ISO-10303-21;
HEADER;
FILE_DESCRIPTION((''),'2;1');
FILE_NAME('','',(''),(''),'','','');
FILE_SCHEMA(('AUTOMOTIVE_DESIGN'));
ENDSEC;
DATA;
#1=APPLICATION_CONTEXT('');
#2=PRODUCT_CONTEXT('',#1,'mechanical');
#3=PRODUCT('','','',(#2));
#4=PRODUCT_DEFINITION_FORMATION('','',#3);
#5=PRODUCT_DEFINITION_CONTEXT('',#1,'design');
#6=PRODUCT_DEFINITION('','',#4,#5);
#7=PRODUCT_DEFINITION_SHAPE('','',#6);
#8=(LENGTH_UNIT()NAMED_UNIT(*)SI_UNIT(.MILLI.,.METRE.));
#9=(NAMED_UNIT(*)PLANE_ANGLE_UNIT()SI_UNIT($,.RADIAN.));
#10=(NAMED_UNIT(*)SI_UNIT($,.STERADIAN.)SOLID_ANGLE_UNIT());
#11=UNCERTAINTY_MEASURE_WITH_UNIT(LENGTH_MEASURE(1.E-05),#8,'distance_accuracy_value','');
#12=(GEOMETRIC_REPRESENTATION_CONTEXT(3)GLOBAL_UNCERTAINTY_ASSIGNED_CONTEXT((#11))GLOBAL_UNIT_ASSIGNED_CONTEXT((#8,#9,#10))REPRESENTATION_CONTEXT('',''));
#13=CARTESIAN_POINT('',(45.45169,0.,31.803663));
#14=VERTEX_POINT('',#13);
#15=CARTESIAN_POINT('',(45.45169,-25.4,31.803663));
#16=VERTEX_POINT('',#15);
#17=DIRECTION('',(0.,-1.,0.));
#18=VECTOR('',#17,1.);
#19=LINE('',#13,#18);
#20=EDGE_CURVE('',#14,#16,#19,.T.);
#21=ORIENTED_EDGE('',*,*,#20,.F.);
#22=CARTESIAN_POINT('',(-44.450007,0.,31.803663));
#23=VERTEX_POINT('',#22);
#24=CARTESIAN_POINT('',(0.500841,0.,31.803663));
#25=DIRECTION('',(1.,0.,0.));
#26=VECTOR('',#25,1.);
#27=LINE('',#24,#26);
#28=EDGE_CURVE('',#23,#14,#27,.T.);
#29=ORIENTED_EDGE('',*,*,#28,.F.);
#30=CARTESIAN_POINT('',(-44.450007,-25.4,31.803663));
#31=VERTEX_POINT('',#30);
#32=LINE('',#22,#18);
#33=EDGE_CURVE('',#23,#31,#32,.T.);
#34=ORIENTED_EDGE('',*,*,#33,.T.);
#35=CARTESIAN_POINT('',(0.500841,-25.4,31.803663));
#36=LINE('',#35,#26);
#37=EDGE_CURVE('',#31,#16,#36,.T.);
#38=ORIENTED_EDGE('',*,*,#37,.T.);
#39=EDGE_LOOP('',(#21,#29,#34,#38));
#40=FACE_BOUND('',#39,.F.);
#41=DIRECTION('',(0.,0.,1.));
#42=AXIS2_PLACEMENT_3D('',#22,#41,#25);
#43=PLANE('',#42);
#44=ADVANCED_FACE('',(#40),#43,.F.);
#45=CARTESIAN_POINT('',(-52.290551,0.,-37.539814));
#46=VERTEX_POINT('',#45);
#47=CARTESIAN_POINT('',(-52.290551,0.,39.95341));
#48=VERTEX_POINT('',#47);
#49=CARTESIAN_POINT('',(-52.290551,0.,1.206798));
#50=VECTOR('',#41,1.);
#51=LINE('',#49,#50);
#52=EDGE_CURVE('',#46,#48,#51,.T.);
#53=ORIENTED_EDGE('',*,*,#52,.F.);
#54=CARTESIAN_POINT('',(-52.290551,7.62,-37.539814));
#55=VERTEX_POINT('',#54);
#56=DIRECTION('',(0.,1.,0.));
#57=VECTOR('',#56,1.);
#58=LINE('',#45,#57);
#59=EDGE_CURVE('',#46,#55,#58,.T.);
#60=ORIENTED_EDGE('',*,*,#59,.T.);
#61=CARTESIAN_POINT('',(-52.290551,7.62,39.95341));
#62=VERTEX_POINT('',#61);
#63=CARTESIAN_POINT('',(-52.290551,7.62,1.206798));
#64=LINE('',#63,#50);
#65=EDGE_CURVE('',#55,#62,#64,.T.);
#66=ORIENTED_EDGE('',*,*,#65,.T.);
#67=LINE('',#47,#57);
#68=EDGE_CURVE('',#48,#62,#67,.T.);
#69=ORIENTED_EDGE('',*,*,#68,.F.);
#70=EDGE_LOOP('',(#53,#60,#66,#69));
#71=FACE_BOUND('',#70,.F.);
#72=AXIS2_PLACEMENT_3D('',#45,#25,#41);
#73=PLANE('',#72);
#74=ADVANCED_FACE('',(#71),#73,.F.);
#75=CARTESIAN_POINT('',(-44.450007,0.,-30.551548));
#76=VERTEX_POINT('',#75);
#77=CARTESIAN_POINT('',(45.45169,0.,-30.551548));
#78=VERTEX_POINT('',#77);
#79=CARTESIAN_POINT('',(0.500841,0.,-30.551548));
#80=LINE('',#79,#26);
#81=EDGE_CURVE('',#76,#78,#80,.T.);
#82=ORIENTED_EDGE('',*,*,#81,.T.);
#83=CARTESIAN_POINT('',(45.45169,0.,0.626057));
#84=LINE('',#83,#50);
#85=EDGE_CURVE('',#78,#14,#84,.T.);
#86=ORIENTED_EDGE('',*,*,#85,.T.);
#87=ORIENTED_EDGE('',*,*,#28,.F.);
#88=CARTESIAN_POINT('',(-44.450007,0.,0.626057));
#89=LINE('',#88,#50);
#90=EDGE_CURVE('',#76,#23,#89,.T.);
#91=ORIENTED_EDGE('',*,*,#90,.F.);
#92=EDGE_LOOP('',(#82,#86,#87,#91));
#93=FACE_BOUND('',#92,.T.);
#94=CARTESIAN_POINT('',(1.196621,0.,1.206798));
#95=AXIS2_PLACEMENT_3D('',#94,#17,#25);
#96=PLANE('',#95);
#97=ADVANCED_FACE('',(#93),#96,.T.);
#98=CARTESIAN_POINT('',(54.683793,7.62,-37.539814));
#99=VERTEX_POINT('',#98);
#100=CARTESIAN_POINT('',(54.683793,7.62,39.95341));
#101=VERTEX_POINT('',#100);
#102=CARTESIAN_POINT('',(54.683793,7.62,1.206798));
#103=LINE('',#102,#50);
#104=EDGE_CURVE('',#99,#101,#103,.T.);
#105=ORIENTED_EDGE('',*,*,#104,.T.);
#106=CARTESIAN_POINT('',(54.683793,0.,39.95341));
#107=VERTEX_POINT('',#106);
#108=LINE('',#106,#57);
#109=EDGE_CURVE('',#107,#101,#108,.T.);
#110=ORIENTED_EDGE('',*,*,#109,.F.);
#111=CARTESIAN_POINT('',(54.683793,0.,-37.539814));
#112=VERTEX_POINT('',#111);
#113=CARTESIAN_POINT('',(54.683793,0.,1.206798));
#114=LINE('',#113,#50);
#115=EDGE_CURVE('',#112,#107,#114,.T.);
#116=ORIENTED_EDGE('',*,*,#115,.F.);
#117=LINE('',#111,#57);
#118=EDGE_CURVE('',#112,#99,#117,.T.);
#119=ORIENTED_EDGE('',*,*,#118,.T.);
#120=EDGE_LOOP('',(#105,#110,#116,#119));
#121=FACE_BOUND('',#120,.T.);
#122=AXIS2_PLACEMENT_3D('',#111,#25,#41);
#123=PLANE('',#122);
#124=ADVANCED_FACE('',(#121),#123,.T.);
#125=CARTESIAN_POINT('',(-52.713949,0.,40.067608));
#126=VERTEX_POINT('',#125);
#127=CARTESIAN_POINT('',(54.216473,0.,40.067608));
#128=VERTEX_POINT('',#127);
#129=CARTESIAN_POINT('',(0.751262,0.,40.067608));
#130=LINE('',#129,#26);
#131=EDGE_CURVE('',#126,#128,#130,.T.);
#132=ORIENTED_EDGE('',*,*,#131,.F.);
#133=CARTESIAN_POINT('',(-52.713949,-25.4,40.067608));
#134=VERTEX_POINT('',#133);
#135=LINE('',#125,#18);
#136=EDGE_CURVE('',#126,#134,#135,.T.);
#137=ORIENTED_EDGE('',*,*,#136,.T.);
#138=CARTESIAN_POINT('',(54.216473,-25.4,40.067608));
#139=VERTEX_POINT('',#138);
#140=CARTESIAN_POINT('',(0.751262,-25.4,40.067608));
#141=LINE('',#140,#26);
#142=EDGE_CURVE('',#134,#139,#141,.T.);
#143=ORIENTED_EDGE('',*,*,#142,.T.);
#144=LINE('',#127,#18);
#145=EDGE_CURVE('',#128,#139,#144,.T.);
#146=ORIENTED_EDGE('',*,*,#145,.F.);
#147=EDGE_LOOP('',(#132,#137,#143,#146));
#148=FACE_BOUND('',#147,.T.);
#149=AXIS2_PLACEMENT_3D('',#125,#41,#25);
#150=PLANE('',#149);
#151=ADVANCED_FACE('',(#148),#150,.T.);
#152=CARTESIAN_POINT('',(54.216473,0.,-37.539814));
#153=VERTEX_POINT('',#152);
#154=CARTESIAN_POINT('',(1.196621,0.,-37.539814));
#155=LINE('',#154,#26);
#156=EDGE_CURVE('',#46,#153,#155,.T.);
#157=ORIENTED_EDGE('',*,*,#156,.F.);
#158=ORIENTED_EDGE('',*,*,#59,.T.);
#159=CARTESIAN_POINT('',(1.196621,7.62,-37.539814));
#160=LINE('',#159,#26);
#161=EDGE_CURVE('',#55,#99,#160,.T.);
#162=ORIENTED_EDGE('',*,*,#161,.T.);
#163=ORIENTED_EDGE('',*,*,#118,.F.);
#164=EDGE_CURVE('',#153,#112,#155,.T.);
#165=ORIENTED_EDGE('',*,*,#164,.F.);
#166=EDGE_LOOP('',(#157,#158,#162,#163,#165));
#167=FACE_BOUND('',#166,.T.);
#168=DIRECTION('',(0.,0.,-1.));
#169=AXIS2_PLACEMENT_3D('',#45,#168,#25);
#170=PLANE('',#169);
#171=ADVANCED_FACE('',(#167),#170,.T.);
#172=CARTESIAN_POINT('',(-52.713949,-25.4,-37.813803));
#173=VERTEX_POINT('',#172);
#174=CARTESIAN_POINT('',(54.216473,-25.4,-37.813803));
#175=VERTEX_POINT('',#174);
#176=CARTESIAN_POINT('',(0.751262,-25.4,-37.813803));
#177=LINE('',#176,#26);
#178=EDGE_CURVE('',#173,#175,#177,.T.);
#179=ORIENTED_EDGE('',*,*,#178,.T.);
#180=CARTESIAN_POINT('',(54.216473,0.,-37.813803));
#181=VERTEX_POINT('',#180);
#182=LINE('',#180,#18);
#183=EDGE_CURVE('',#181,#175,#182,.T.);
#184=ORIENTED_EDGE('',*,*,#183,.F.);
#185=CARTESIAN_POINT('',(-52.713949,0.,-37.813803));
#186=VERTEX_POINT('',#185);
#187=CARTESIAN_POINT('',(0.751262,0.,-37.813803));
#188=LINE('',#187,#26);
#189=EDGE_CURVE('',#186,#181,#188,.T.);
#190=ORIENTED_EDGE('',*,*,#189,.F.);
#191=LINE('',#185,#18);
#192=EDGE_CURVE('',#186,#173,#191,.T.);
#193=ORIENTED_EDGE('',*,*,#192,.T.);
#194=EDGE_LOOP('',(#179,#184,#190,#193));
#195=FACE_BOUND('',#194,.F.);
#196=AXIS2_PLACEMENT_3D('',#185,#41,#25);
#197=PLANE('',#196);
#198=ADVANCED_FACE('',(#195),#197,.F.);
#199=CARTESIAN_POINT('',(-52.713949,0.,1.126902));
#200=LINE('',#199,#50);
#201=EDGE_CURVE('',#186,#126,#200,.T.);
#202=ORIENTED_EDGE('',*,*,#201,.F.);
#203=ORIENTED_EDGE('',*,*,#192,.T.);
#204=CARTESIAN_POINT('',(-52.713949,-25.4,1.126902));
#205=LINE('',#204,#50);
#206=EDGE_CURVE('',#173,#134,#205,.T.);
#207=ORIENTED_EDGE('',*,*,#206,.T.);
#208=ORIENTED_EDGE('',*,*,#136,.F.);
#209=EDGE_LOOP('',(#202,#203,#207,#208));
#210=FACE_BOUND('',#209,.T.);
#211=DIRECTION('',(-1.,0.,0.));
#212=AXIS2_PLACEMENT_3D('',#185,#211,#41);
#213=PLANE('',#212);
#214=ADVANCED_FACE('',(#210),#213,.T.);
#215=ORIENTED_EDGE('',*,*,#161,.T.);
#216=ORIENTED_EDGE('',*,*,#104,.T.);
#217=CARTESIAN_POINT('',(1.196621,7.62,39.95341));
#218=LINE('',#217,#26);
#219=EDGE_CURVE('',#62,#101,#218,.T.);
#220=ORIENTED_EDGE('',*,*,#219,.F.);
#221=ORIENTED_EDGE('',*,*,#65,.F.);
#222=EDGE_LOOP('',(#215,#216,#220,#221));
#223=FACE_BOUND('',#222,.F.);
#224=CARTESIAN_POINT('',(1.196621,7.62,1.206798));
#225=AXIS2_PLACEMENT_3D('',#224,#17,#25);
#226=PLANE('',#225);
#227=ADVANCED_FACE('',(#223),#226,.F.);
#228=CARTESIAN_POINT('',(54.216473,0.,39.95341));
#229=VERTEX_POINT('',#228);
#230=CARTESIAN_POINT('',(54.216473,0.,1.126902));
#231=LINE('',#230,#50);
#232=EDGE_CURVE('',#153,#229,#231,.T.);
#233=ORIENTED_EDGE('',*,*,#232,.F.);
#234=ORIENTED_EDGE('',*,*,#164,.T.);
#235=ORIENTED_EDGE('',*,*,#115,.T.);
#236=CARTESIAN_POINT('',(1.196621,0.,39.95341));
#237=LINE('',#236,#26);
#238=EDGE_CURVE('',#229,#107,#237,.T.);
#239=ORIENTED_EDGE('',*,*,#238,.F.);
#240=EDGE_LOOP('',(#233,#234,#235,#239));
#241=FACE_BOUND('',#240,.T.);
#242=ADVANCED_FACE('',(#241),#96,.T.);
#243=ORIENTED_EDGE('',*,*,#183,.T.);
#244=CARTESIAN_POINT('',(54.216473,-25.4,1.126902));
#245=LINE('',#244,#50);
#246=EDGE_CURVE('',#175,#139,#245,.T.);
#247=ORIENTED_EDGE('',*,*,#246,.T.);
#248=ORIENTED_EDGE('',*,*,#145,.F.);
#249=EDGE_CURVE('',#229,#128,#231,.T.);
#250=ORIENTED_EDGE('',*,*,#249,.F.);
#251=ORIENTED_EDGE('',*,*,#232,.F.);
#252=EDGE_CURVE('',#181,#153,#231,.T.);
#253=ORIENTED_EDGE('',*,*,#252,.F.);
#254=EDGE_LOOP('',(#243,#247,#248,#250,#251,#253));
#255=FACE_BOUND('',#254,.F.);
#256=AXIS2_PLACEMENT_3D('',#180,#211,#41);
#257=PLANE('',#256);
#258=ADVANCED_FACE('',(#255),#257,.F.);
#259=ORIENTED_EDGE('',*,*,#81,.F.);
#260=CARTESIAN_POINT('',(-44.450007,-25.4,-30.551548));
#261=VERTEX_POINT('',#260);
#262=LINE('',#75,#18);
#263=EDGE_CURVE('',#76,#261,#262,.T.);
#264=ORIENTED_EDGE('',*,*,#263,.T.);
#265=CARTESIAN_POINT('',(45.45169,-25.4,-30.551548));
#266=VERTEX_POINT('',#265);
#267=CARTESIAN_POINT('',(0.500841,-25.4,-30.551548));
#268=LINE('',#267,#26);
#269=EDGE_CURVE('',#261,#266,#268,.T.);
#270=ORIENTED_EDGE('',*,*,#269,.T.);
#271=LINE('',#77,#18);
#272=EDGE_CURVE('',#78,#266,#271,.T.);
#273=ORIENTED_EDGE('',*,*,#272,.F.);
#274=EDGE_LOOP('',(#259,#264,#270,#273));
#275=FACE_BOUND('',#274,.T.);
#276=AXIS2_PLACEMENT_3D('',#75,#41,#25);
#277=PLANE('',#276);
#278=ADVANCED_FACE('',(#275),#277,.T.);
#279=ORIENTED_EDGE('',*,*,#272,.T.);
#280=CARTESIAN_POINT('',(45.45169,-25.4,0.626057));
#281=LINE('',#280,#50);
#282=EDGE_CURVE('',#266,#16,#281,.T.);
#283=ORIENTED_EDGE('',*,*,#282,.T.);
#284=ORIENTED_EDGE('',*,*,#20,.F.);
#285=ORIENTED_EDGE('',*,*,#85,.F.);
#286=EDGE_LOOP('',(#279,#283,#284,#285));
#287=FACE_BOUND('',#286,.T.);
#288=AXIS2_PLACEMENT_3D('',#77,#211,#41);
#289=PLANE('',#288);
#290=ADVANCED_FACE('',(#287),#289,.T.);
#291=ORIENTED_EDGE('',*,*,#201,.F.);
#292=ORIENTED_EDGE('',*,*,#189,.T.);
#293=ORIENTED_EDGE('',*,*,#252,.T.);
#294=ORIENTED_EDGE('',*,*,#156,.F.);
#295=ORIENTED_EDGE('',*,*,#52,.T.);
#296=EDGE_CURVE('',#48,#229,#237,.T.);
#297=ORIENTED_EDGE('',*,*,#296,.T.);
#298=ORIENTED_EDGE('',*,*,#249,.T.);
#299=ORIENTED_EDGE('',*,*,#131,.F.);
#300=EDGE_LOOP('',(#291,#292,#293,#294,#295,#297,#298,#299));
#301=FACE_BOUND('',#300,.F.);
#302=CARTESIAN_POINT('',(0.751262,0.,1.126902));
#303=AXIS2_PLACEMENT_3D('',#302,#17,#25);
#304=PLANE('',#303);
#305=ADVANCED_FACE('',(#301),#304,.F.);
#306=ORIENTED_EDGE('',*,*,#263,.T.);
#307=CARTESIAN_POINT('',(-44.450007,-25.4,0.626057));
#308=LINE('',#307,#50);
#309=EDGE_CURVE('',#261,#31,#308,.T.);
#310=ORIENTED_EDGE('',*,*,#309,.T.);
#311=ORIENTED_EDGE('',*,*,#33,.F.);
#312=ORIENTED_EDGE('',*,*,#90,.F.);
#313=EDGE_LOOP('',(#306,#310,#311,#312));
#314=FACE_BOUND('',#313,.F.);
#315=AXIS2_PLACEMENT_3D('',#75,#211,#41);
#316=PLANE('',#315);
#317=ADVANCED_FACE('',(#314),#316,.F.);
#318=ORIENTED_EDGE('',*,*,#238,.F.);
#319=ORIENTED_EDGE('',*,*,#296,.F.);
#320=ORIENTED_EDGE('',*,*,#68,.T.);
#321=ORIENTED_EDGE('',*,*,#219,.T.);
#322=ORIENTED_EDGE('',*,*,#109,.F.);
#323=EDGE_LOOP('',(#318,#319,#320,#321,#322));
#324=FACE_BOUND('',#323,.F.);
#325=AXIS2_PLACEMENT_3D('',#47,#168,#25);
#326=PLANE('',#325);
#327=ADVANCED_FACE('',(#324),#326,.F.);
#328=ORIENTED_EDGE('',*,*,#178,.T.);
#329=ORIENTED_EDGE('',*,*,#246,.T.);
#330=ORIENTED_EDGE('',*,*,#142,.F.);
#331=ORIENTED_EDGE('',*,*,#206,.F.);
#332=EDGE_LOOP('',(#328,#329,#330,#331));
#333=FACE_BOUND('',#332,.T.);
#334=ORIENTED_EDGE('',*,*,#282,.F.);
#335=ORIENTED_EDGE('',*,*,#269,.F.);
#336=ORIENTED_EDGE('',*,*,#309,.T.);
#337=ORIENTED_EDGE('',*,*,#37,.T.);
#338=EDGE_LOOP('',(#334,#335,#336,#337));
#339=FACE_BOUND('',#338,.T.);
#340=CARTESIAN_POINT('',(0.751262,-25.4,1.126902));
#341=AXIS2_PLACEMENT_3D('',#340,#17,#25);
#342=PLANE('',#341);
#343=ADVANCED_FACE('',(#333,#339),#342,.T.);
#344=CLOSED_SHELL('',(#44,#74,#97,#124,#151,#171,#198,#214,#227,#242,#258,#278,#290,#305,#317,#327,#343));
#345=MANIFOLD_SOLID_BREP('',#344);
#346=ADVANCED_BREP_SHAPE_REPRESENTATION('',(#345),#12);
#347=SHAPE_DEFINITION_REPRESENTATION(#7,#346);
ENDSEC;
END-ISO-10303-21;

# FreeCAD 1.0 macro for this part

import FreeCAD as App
import Part
import Sketcher

V = App.Vector
Q = App.Units.Quantity


def add_polygon(sketch, points):
    """Adds a closed chain of lines whose ends are joined by coincident constraints."""
    first, n = sketch.GeometryCount, len(points)
    for a, b in zip(points, points[1:] + points[:1]):
        sketch.addGeometry(Part.LineSegment(App.Vector(*a, 0), App.Vector(*b, 0)), False)
    for i in range(n):
        sketch.addConstraint(Sketcher.Constraint("Coincident", first + i, 2, first + (i + 1) % n, 1))

doc = App.newDocument("Part")
params = doc.addObject("Spreadsheet::Sheet", "Params")
for row, (alias, value) in enumerate([
    ("pad1_length", "1 in"),
    ("pad2_length", "0.3 in"),
], start=1):
    params.set(f"A{row}", alias)
    params.set(f"B{row}", "=" + value)
    params.setAlias(f"B{row}", alias)

body = doc.addObject("PartDesign::Body", "Body")

sketch1 = doc.addObject("Sketcher::SketchObject", "Sketch")
body.addObject(sketch1)
sketch1.AttachmentSupport = (doc.XZ_Plane, [""])
sketch1.MapMode = "FlatFace"
add_polygon(sketch1, [(-53, 40), (-53, -38), (54, -38), (54, 40)])
add_polygon(sketch1, [(45, -31), (-44, -31), (-44, 32), (45, 32)])
sketch1.addConstraint([
    Sketcher.Constraint("Vertical", 0),
    Sketcher.Constraint("Horizontal", 1),
    Sketcher.Constraint("Vertical", 2),
    Sketcher.Constraint("Horizontal", 3),
    Sketcher.Constraint("Horizontal", 4),
    Sketcher.Constraint("Vertical", 5),
    Sketcher.Constraint("Horizontal", 6),
    Sketcher.Constraint("Vertical", 7),
    Sketcher.Constraint("DistanceY", 0, 2, 0, 1, Q("77.881411 mm")),
    Sketcher.Constraint("DistanceY", 5, 1, 5, 2, Q("62.355211 mm")),
    Sketcher.Constraint("DistanceX", 1, 1, 1, 2, Q("106.930423 mm")),
    Sketcher.Constraint("DistanceX", 4, 2, 4, 1, Q("89.901697 mm")),
    Sketcher.Constraint("DistanceX", 0, 2, -1, 1, Q("52.713949 mm")),
    Sketcher.Constraint("DistanceY", 4, 2, -1, 1, Q("30.551548 mm")),
    Sketcher.Constraint("DistanceX", -1, 1, 6, 2, Q("45.45169 mm")),
    Sketcher.Constraint("DistanceY", 0, 2, -1, 1, Q("37.813803 mm")),
])
pad1 = doc.addObject("PartDesign::Pad", "Pad")
body.addObject(pad1)
pad1.Profile = sketch1
pad1.setExpression("Length", "Params.pad1_length")

sketch2 = doc.addObject("Sketcher::SketchObject", "Sketch001")
body.addObject(sketch2)
sketch2.AttachmentSupport = (doc.XZ_Plane, [""])
sketch2.MapMode = "FlatFace"
add_polygon(sketch2, [(-52, 40), (-52, -38), (55, -38), (55, 40)])
sketch2.addConstraint([
    Sketcher.Constraint("Vertical", 0),
    Sketcher.Constraint("Horizontal", 1),
    Sketcher.Constraint("Vertical", 2),
    Sketcher.Constraint("Horizontal", 3),
    Sketcher.Constraint("DistanceX", 1, 1, 1, 2, Q("106.974344 mm")),
    Sketcher.Constraint("DistanceY", 0, 2, 0, 1, Q("77.493225 mm")),
    Sketcher.Constraint("DistanceX", 0, 2, -1, 1, Q("52.290551 mm")),
    Sketcher.Constraint("DistanceY", -1, 1, 2, 2, Q("39.95341 mm")),
])
pad2 = doc.addObject("PartDesign::Pad", "Pad001")
body.addObject(pad2)
pad2.Profile = sketch2
pad2.setExpression("Length", "Params.pad2_length")
pad2.Reversed = True

doc.recompute()
